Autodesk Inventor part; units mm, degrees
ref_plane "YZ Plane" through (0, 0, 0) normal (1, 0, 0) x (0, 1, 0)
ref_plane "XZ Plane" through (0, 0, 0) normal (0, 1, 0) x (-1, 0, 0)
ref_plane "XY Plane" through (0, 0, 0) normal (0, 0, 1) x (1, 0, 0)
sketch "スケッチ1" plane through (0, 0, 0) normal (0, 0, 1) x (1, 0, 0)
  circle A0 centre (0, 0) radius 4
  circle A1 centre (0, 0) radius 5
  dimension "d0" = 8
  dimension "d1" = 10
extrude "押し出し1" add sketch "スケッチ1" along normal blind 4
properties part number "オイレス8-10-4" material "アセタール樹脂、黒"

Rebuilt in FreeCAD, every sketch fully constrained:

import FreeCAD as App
import Part
import Sketcher

V = App.Vector

doc = App.newDocument("Part")
body = doc.addObject("PartDesign::Body", "Body")

# Sketch on XY plane
sketch1 = doc.addObject("Sketcher::SketchObject", "Sketch")
body.addObject(sketch1)
sketch1.AttachmentSupport = (doc.XY_Plane, [""])
sketch1.MapMode = "FlatFace"
sketch1.addGeometry([
    Part.Circle(V(0, 0, 0), V(0, 0, 1), 5),
    Part.Circle(V(0, 0, 0), V(0, 0, 1), 4),
], False)
sketch1.addConstraint([
    Sketcher.Constraint("Coincident", 0, 3, -1, 1),
    Sketcher.Constraint("Coincident", 1, 3, -1, 1),
    Sketcher.Constraint("Diameter", 0, 10.0),
    Sketcher.Constraint("Diameter", 1, 8.0),
])
pad1 = doc.addObject("PartDesign::Pad", "Pad")
body.addObject(pad1)
pad1.Profile = sketch1
pad1.Length = 4

doc.recompute()
